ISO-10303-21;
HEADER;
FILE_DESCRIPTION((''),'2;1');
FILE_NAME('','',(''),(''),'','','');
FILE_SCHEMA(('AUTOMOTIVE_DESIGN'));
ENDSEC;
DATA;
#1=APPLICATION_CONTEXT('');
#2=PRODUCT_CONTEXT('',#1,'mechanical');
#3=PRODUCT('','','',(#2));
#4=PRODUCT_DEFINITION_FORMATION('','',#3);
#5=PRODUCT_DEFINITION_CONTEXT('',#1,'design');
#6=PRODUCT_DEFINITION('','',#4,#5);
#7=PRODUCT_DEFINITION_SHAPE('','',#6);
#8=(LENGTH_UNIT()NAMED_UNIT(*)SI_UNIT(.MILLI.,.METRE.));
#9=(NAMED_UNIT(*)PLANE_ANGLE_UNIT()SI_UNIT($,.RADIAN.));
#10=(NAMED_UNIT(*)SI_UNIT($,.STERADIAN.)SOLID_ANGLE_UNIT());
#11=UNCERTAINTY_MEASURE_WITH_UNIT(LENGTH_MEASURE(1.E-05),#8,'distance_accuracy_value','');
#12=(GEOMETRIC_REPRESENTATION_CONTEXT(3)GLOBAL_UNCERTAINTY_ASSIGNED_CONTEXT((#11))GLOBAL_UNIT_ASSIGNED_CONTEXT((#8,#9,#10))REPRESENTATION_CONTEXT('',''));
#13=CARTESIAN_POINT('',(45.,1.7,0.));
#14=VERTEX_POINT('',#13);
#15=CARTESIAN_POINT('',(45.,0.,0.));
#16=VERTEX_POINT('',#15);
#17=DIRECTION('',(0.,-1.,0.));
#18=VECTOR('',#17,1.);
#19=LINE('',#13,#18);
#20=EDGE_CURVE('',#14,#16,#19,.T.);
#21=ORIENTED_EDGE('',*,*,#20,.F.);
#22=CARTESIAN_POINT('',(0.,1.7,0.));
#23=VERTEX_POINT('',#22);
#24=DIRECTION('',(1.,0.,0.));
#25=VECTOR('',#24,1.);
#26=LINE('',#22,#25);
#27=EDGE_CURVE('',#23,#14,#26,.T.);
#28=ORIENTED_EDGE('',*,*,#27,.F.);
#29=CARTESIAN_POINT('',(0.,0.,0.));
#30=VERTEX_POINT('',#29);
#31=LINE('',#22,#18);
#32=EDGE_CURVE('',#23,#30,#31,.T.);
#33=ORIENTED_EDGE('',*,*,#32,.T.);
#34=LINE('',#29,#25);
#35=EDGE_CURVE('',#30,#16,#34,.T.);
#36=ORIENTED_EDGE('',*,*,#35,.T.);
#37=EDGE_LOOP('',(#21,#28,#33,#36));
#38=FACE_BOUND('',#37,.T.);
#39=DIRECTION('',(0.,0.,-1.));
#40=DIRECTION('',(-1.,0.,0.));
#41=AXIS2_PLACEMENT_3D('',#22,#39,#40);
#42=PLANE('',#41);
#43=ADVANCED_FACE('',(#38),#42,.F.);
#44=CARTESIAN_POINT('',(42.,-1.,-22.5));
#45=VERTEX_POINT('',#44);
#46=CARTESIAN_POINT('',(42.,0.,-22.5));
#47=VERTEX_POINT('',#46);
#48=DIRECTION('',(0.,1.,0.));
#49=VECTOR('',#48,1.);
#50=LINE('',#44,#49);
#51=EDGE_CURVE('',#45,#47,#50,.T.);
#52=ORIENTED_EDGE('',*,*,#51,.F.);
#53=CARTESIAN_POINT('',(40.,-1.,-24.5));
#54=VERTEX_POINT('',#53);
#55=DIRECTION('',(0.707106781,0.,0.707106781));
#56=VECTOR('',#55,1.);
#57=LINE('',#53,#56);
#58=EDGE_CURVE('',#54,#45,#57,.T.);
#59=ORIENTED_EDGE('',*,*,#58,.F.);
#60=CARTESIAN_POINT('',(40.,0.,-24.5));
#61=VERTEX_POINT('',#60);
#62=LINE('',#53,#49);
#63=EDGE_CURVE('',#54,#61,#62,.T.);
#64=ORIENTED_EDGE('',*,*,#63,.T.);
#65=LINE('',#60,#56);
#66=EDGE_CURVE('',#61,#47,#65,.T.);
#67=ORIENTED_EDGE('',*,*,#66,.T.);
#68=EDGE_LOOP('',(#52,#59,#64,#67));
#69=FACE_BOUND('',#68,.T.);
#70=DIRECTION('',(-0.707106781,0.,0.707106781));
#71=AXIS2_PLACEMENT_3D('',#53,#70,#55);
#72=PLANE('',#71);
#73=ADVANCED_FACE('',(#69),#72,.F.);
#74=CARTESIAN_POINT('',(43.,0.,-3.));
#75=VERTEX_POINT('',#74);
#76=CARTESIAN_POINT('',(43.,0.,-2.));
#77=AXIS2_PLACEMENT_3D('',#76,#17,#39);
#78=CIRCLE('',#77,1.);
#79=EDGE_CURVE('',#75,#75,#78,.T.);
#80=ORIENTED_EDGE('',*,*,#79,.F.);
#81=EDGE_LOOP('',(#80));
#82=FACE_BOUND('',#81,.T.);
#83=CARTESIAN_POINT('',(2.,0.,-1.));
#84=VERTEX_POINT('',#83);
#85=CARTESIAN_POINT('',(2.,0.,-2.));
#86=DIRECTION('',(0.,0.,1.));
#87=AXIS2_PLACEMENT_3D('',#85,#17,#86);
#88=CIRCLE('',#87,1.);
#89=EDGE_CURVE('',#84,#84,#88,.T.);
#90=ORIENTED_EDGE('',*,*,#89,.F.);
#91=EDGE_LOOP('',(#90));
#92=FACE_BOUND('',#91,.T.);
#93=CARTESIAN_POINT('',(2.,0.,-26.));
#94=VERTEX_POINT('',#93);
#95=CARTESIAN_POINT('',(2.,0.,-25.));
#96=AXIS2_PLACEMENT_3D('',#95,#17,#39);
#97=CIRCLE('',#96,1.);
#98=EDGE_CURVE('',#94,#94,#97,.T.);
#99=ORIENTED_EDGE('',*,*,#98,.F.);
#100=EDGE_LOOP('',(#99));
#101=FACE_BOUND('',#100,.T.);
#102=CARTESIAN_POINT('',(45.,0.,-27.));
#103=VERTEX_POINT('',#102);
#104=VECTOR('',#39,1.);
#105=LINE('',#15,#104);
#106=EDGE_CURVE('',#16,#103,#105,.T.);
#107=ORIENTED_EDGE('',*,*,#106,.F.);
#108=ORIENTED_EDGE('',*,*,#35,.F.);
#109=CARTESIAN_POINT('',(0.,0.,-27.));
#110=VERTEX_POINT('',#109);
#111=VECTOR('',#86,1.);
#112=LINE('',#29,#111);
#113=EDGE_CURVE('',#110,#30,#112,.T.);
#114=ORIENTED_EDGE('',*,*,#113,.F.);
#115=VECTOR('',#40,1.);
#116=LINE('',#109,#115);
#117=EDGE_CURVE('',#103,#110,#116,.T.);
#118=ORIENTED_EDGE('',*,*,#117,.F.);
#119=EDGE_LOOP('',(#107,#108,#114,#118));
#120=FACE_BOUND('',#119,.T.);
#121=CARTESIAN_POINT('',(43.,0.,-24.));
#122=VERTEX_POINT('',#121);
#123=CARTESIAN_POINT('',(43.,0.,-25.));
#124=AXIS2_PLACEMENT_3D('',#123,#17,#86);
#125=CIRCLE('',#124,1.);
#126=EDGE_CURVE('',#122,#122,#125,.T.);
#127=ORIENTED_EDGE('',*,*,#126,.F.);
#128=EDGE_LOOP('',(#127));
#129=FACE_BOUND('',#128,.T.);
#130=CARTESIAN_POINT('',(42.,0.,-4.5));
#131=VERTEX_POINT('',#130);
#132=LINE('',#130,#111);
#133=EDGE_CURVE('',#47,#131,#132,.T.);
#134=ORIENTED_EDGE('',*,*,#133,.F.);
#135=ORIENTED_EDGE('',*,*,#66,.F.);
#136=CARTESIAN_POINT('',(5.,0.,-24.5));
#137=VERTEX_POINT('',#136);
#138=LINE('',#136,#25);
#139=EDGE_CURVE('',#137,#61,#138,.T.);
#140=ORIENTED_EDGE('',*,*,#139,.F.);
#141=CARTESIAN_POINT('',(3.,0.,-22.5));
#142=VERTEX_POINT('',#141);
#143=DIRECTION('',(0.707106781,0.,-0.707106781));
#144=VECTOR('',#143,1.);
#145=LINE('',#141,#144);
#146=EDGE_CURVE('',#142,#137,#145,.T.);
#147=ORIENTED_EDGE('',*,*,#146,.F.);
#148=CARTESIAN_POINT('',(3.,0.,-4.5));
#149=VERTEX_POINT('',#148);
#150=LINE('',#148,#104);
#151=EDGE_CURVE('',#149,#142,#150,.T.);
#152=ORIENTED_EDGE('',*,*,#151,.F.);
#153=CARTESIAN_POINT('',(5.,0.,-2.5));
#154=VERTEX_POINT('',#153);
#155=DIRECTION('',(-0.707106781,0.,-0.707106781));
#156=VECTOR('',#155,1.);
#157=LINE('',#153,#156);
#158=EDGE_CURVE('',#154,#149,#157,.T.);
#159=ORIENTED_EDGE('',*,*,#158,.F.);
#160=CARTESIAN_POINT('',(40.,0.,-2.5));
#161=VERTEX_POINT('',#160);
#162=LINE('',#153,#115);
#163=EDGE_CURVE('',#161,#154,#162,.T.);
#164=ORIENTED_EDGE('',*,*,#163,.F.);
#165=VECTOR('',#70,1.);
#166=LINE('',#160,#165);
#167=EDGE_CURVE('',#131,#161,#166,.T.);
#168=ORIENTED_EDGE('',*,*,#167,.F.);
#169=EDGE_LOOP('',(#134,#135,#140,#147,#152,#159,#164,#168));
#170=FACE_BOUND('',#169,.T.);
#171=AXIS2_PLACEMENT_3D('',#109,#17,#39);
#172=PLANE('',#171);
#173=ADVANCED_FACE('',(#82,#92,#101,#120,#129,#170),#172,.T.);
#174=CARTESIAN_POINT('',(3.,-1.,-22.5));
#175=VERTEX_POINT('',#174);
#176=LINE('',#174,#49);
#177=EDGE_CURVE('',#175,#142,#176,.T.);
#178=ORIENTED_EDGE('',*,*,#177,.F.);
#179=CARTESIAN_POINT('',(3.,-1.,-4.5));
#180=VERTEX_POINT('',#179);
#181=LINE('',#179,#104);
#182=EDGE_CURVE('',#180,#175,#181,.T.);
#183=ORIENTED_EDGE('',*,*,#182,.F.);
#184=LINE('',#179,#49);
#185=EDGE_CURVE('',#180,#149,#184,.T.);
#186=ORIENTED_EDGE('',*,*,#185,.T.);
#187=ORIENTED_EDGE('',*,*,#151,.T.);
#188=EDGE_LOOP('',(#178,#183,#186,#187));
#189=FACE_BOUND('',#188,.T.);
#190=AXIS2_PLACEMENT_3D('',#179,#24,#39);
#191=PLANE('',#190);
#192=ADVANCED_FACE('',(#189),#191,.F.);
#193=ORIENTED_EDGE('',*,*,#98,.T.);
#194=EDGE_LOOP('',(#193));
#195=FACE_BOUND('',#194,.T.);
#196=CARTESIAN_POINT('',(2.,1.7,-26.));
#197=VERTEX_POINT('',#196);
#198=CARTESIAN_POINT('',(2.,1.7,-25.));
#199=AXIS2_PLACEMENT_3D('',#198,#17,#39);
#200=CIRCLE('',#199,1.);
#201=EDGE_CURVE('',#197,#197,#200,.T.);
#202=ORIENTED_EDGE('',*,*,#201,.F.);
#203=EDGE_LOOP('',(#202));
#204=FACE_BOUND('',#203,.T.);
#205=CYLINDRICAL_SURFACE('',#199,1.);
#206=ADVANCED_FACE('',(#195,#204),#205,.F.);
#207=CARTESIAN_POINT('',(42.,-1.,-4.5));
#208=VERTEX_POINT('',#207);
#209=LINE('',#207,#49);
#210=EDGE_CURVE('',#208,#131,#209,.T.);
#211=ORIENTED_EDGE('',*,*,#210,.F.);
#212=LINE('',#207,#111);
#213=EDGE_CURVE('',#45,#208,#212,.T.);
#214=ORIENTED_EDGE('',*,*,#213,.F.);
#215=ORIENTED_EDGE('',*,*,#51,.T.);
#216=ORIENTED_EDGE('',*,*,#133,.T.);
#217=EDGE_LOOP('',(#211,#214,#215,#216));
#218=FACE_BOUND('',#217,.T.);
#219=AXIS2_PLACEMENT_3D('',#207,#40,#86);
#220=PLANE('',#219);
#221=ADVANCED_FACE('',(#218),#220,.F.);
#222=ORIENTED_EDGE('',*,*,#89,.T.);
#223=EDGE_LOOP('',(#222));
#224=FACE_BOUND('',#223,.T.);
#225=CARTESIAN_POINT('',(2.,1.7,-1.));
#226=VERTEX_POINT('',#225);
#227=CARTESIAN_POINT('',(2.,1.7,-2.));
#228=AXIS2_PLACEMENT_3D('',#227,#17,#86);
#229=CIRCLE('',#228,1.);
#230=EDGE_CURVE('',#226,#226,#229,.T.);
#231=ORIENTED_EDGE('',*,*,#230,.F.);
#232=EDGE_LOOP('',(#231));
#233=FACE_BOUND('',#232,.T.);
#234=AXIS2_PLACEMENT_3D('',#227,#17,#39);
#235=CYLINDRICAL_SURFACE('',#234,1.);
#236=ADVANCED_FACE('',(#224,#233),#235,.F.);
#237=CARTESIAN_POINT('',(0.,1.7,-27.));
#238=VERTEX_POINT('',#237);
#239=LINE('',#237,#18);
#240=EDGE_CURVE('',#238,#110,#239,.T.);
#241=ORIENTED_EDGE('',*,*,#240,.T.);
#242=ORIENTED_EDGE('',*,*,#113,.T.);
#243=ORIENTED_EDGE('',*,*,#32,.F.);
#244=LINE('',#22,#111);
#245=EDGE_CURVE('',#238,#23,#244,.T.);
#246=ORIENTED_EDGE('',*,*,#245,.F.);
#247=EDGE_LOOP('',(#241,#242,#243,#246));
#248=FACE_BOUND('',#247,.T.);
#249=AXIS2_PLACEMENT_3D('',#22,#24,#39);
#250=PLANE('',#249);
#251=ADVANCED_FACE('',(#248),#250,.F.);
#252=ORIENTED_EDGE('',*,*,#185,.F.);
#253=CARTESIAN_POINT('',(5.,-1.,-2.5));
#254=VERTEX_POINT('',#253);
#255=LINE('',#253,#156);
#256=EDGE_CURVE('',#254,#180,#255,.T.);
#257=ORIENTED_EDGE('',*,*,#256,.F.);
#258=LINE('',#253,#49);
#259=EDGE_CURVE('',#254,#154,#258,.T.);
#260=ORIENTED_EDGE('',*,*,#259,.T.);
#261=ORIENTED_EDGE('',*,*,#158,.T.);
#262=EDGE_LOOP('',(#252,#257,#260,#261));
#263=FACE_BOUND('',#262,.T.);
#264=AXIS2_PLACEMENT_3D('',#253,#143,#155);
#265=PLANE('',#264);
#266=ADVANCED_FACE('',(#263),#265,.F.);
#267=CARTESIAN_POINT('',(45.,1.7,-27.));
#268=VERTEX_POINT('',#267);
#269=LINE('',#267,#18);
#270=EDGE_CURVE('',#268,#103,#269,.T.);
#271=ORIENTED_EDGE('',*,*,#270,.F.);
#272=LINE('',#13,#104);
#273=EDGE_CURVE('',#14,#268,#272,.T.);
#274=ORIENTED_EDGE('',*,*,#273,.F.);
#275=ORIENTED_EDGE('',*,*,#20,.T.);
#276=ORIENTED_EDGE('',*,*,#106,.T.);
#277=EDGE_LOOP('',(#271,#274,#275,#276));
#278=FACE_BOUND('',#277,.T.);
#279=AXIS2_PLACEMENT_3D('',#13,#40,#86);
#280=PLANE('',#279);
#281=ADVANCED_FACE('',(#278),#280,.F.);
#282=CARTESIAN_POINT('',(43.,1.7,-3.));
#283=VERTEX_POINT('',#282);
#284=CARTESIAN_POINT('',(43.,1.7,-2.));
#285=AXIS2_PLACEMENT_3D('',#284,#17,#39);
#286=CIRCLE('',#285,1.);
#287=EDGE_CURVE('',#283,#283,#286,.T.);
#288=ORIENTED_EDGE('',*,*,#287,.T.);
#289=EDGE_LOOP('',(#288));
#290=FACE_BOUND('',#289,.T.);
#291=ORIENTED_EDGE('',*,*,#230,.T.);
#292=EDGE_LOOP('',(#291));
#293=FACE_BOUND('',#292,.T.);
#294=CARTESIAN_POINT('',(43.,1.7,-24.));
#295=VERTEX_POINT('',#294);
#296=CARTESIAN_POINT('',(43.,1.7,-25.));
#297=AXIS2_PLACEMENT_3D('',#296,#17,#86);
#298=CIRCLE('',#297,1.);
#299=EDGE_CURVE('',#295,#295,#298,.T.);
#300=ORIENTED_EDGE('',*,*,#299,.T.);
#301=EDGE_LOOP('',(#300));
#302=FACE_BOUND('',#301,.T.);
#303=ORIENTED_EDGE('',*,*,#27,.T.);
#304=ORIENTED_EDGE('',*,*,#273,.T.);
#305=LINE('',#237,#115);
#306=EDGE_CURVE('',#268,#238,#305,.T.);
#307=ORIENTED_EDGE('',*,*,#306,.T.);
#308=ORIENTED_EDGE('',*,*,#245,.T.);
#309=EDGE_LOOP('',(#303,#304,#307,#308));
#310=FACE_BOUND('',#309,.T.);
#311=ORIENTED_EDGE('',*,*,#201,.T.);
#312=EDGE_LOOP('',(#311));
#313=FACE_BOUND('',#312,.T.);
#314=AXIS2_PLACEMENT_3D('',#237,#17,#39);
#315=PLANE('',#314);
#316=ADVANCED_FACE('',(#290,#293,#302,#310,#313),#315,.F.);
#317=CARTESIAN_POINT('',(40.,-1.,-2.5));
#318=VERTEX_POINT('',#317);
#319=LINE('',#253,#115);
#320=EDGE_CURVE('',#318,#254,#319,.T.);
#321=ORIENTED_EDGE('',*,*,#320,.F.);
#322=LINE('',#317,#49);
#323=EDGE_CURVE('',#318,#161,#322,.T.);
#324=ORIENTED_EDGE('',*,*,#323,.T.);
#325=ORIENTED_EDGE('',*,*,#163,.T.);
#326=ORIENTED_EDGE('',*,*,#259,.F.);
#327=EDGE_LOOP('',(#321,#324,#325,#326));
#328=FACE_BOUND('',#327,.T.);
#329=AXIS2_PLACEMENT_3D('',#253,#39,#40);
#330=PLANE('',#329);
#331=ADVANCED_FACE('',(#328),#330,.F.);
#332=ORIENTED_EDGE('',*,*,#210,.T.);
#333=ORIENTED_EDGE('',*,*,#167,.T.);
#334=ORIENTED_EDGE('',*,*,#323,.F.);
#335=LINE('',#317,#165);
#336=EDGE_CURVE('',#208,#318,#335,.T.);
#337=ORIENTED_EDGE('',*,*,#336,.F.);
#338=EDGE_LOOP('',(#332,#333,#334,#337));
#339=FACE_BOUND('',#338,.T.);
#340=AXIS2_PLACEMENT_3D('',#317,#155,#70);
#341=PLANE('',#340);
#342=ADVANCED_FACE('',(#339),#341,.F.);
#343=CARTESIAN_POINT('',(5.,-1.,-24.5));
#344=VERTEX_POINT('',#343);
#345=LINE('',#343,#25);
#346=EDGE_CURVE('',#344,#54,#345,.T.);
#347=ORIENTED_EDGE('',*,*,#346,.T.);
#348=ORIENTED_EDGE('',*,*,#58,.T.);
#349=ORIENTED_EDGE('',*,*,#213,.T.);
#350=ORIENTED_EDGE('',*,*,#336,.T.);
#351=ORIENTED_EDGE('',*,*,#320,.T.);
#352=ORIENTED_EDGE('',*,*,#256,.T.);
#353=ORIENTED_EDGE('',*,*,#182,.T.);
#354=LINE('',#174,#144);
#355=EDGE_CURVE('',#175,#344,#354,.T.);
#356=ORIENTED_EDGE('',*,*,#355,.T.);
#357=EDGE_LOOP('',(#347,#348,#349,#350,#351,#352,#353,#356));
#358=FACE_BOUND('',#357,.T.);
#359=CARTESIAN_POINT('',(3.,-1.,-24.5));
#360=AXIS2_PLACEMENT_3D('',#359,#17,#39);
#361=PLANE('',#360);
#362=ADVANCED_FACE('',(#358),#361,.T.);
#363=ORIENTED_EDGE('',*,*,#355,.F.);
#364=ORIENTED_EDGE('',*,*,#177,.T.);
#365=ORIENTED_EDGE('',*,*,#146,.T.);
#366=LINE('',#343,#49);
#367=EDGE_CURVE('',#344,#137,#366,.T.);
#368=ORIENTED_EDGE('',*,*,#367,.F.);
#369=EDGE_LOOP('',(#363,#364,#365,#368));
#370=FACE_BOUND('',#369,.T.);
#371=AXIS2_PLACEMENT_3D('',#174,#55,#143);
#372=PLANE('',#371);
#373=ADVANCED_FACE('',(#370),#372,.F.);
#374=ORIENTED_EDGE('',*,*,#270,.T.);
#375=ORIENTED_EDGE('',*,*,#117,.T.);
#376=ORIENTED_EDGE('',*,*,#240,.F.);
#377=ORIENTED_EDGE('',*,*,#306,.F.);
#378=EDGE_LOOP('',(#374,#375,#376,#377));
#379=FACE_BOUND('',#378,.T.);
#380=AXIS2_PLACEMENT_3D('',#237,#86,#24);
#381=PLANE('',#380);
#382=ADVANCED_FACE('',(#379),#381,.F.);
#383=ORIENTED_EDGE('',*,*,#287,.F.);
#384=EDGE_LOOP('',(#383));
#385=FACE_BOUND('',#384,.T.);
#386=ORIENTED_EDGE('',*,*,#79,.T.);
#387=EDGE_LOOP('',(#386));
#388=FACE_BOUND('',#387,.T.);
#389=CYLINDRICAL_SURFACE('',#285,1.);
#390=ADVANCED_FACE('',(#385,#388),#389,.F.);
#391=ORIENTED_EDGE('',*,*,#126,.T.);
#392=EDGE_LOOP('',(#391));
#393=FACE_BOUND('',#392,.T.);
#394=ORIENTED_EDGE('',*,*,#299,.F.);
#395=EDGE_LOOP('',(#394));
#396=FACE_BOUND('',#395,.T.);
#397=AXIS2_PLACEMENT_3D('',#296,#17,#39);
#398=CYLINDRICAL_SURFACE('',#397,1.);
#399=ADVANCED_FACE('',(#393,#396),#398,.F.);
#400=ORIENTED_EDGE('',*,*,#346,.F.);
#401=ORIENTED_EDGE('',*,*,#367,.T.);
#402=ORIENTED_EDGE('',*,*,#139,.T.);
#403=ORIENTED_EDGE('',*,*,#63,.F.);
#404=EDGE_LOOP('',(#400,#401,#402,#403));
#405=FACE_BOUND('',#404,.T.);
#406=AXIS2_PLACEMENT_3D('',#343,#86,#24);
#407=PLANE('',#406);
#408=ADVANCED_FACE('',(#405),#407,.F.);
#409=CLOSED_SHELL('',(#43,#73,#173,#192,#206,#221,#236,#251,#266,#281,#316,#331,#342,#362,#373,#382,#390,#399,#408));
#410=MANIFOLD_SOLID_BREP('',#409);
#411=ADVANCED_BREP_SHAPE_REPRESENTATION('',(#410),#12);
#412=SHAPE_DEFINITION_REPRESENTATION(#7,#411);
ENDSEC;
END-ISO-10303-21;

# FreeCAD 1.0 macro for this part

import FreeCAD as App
import Part
import Sketcher

V = App.Vector


def add_polygon(sketch, points):
    """Adds a closed chain of lines whose ends are joined by coincident constraints."""
    first, n = sketch.GeometryCount, len(points)
    for a, b in zip(points, points[1:] + points[:1]):
        sketch.addGeometry(Part.LineSegment(App.Vector(*a, 0), App.Vector(*b, 0)), False)
    for i in range(n):
        sketch.addConstraint(Sketcher.Constraint("Coincident", first + i, 2, first + (i + 1) % n, 1))

doc = App.newDocument("Part")
body = doc.addObject("PartDesign::Body", "Body")

sketch1 = body.newObject("Sketcher::SketchObject", "Sketch")
sketch1.AttachmentSupport = (doc.getObject("XZ_Plane"), [""])
sketch1.MapMode = "FlatFace"
add_polygon(sketch1, [(0, -27), (0, 0), (45, 0), (45, -27)])
sketch1.addConstraint(Sketcher.Constraint("Vertical", 0))
sketch1.addConstraint(Sketcher.Constraint("Horizontal", 1))
sketch1.addConstraint(Sketcher.Constraint("Vertical", 2))
sketch1.addConstraint(Sketcher.Constraint("Horizontal", 3))
sketch1.addConstraint(Sketcher.Constraint("Coincident", 0, 2, -1, 1))
sketch1.addConstraint(Sketcher.Constraint("DistanceX", 1, 1, 1, 2, 45.0))
sketch1.addConstraint(Sketcher.Constraint("DistanceY", 0, 1, 0, 2, 27.0))
pad1 = body.newObject("PartDesign::Pad", "Pad")
pad1.Profile = sketch1
pad1.Length = 1.7
pad1.Reversed = True

sketch2 = body.newObject("Sketcher::SketchObject", "Sketch001")
sketch2.AttachmentSupport = (doc.getObject("XZ_Plane"), [""])
sketch2.MapMode = "FlatFace"
add_polygon(sketch2, [(3, -22.5), (5, -24.5), (40, -24.5), (42, -22.5), (42, -4.5), (40, -2.5), (5, -2.5), (3, -4.5)])
sketch2.addConstraint(Sketcher.Constraint("Horizontal", 1))
sketch2.addConstraint(Sketcher.Constraint("Vertical", 3))
sketch2.addConstraint(Sketcher.Constraint("Horizontal", 5))
sketch2.addConstraint(Sketcher.Constraint("Vertical", 7))
sketch2.addConstraint(Sketcher.Constraint("Perpendicular", 0, 2))
sketch2.addConstraint(Sketcher.Constraint("Perpendicular", 2, 4))
sketch2.addConstraint(Sketcher.Constraint("Perpendicular", 4, 6))
sketch2.addConstraint(Sketcher.Constraint("Horizontal", 3, 2, 6, 2))
sketch2.addConstraint(Sketcher.Constraint("Horizontal", 2, 2, 7, 2))
sketch2.addConstraint(Sketcher.Constraint("Vertical", 1, 2, 4, 2))
sketch2.addConstraint(Sketcher.Constraint("Vertical", 0, 2, 5, 2))
sketch2.addConstraint(Sketcher.Constraint("DistanceX", 1, 1, 1, 2, 35.0))
sketch2.addConstraint(Sketcher.Constraint("DistanceY", 3, 1, 3, 2, 18.0))
sketch2.addConstraint(Sketcher.Constraint("DistanceX", -1, 1, 0, 2, 5.0))
sketch2.addConstraint(Sketcher.Constraint("DistanceX", -1, 1, 2, 2, 42.0))
sketch2.addConstraint(Sketcher.Constraint("DistanceY", 0, 2, -1, 1, 24.5))
pad2 = body.newObject("PartDesign::Pad", "Pad001")
pad2.Profile = sketch2
pad2.Length = 1

sketch3 = body.newObject("Sketcher::SketchObject", "Sketch002")
sketch3.AttachmentSupport = (doc.getObject("XZ_Plane"), [""])
sketch3.MapMode = "FlatFace"
sketch3.addGeometry(Part.Circle(V(2, -25, 0), V(0, 0, 1), 1), False)
sketch3.addGeometry(Part.Circle(V(43, -25, 0), V(0, 0, 1), 1), False)
sketch3.addGeometry(Part.Circle(V(43, -2, 0), V(0, 0, 1), 1), False)
sketch3.addGeometry(Part.Circle(V(2, -2, 0), V(0, 0, 1), 1), False)
sketch3.addConstraint(Sketcher.Constraint("Equal", 0, 1))
sketch3.addConstraint(Sketcher.Constraint("Equal", 1, 2))
sketch3.addConstraint(Sketcher.Constraint("Equal", 2, 3))
sketch3.addConstraint(Sketcher.Constraint("Horizontal", 0, 3, 1, 3))
sketch3.addConstraint(Sketcher.Constraint("Horizontal", 2, 3, 3, 3))
sketch3.addConstraint(Sketcher.Constraint("Vertical", 1, 3, 2, 3))
sketch3.addConstraint(Sketcher.Constraint("Vertical", 0, 3, 3, 3))
sketch3.addConstraint(Sketcher.Constraint("Diameter", 0, 2.0))
sketch3.addConstraint(Sketcher.Constraint("DistanceX", -1, 1, 0, 3, 2.0))
sketch3.addConstraint(Sketcher.Constraint("DistanceY", 0, 3, -1, 1, 25.0))
sketch3.addConstraint(Sketcher.Constraint("DistanceX", -1, 1, 1, 3, 43.0))
sketch3.addConstraint(Sketcher.Constraint("DistanceY", 2, 3, -1, 1, 2.0))
pocket1 = body.newObject("PartDesign::Pocket", "Pocket")
pocket1.Profile = sketch3
pocket1.Type = "ThroughAll"

doc.recompute()
